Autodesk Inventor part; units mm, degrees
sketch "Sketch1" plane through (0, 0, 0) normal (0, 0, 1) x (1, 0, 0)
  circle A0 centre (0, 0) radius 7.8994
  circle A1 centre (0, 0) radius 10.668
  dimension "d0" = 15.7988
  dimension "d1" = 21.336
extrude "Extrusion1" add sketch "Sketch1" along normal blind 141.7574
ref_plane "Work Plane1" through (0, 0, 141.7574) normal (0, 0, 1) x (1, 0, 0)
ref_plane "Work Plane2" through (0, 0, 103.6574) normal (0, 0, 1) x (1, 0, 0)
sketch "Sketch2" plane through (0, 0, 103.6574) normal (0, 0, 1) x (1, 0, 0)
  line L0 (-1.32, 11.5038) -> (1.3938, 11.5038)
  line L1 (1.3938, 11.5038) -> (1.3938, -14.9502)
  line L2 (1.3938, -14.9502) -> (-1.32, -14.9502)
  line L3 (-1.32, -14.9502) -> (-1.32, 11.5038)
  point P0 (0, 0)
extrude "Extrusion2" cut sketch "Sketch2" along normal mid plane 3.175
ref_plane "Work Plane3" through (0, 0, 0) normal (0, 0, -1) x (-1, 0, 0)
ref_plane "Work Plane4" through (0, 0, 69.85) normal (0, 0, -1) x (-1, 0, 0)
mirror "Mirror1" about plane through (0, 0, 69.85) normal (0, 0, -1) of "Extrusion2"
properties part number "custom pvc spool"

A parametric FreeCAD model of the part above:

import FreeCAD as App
import Part
import Sketcher
from FreeCAD import Vector
Q = App.Units.Quantity


def add_polygon(sketch, points):
    """Adds a closed chain of lines whose ends are joined by coincident constraints."""
    first, n = sketch.GeometryCount, len(points)
    for a, b in zip(points, points[1:] + points[:1]):
        sketch.addGeometry(Part.LineSegment(App.Vector(*a, 0), App.Vector(*b, 0)), False)
    for i in range(n):
        sketch.addConstraint(Sketcher.Constraint("Coincident", first + i, 2, first + (i + 1) % n, 1))

doc = App.newDocument("Part")
body = doc.addObject("PartDesign::Body", "Body")

# Sketch on XY plane
sketch1 = body.newObject("Sketcher::SketchObject", "Sketch")
sketch1.AttachmentSupport = (doc.getObject("XY_Plane"), [""])
sketch1.MapMode = "FlatFace"
sketch1.addGeometry([
    Part.Circle(Vector(0, 0, 0), Vector(0, 0, 1), 10.668),
    Part.Circle(Vector(0, 0, 0), Vector(0, 0, 1), 7.8994),
], False)
sketch1.addConstraint([
    Sketcher.Constraint("Coincident", 0, 3, -1, 1),
    Sketcher.Constraint("Coincident", 1, 3, -1, 1),
    Sketcher.Constraint("Diameter", 0, Q("0.84 in")),
    Sketcher.Constraint("Diameter", 1, Q("0.622 in")),
])
pad1 = body.newObject("PartDesign::Pad", "Pad")
pad1.Profile = sketch1
pad1.Length = Q("5.581 in")

# Sketch on XY plane
sketch2 = body.newObject("Sketcher::SketchObject", "Sketch001")
sketch2.AttachmentSupport = (doc.getObject("XY_Plane"), [""])
sketch2.MapMode = "FlatFace"
sketch2.AttachmentOffset = App.Placement(Vector(0, 0, 4.081 * 25.4), App.Rotation())
add_polygon(sketch2, [(1.3938, 11.5038), (-1.32, 11.5038), (-1.32, -14.9502), (1.3938, -14.9502)])  # lines 0-3
sketch2.addConstraint([
    Sketcher.Constraint("Horizontal", 0),
    Sketcher.Constraint("Vertical", 1),
    Sketcher.Constraint("Horizontal", 2),
    Sketcher.Constraint("Vertical", 3),
    Sketcher.Constraint("DistanceY", 1, 2, 1, 1, Q("1.0415 in")),
    Sketcher.Constraint("DistanceX", 0, 2, 0, 1, 2.7138),
    Sketcher.Constraint("DistanceY", -1, 1, 0, 2, Q("0.4529 in")),
    Sketcher.Constraint("DistanceX", 0, 2, -1, 1, 1.32),
])
pocket1 = body.newObject("PartDesign::Pocket", "Pocket")
pocket1.Profile = sketch2
pocket1.Length = Q("0.125 in")
pocket1.Midplane = True
doc.recompute()

datumplane = body.newObject("PartDesign::Plane", "DatumPlane")
datumplane.AttachmentSupport = (doc.getObject("XY_Plane"), [""])
datumplane.MapMode = "FlatFace"
datumplane.AttachmentOffset = App.Placement(Vector(0, 0, 2.75 * 25.4), App.Rotation())
mirrored = body.newObject("PartDesign::Mirrored", "Mirrored")
mirrored.Originals = [pocket1]
mirrored.MirrorPlane = (datumplane, [""])
body.Tip = mirrored

doc.recompute()
